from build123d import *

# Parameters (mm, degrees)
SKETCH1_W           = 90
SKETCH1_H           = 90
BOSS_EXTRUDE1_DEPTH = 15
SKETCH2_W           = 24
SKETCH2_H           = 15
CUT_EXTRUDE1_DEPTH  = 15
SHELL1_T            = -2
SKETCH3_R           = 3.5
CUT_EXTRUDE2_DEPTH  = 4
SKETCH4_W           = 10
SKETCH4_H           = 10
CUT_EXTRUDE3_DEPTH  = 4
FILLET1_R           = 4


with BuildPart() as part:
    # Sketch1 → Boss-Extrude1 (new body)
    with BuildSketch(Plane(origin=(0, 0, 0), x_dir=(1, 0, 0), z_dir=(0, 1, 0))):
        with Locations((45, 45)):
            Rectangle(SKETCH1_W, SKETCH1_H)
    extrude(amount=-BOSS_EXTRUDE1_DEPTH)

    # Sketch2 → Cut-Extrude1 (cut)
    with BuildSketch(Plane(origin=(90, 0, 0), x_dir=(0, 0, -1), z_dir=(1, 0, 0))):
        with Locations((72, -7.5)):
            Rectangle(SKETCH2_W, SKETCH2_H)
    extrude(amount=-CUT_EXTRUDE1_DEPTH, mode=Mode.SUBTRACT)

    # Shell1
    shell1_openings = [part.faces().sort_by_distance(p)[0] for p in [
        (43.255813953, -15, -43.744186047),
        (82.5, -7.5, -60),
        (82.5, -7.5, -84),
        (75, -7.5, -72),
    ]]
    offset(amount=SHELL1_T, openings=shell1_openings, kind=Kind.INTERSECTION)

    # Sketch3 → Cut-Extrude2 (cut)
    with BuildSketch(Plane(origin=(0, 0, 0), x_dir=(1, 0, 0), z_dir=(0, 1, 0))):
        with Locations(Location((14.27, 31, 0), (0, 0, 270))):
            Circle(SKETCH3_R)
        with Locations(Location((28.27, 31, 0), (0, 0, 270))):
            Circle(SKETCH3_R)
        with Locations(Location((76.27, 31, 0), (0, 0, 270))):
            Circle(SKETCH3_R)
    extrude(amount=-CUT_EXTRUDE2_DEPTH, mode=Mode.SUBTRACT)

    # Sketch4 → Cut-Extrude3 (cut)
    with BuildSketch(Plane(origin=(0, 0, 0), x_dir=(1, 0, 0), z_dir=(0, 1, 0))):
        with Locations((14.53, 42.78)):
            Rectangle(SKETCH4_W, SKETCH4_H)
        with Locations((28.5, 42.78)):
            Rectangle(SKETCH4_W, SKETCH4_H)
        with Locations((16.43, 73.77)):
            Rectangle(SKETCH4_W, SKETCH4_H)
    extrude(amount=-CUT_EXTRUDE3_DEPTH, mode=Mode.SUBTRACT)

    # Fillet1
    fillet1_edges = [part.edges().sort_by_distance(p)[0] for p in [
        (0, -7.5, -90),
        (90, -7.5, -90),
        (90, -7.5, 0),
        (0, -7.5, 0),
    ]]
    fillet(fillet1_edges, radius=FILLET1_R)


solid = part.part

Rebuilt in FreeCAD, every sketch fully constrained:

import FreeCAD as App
import Part
import Sketcher


def edges_at(feature, points):
    """Names of the edges that pass closest to the given points."""
    edges = feature.Shape.Edges
    near = lambda p: min(range(len(edges)), key=lambda i: edges[i].distToShape(Part.Vertex(*p))[0])
    return sorted({f"Edge{near(p) + 1}" for p in points})


def faces_at(feature, points):
    """Names of the faces that lie closest to the given points."""
    faces = feature.Shape.Faces
    near = lambda p: min(range(len(faces)), key=lambda i: faces[i].distToShape(Part.Vertex(*p))[0])
    return sorted({f"Face{near(p) + 1}" for p in points})

doc = App.newDocument("Part")
params = doc.addObject("Spreadsheet::Sheet", "Params")
for row, (alias, value) in enumerate([
    ("sketch1_width", "90 mm"),
    ("pad1_length", "15 mm"),
    ("sketch2_width", "15 mm"),
    ("sketch2_height", "24 mm"),
    ("pocket1_length", "15 mm"),
    ("thickness_wall", "2 mm"),
    ("sketch3_diameter", "7 mm"),
    ("pocket2_length", "4 mm"),
    ("sketch4_width", "10 mm"),
    ("pocket3_length", "4 mm"),
    ("fillet_radius", "4 mm"),
], start=1):
    params.set(f"A{row}", alias)
    params.set(f"B{row}", "=" + value)
    params.setAlias(f"B{row}", alias)

body = doc.addObject("PartDesign::Body", "Body")

# Sketch on XZ plane
sketch1 = doc.addObject("Sketcher::SketchObject", "Sketch")
body.addObject(sketch1)
sketch1.AttachmentSupport = (doc.XZ_Plane, [""])
sketch1.MapMode = "FlatFace"
sketch1.addGeometry([
    Part.LineSegment(App.Vector(0, -90, 0), App.Vector(0, 0, 0)),
    Part.LineSegment(App.Vector(0, 0, 0), App.Vector(90, 0, 0)),
    Part.LineSegment(App.Vector(90, 0, 0), App.Vector(90, -90, 0)),
    Part.LineSegment(App.Vector(90, -90, 0), App.Vector(0, -90, 0)),
], False)
sketch1.addConstraint([
    Sketcher.Constraint("Coincident", 0, 2, 1, 1),
    Sketcher.Constraint("Coincident", 1, 2, 2, 1),
    Sketcher.Constraint("Coincident", 2, 2, 3, 1),
    Sketcher.Constraint("Coincident", 3, 2, 0, 1),
    Sketcher.Constraint("Vertical", 0),
    Sketcher.Constraint("Horizontal", 1),
    Sketcher.Constraint("Vertical", 2),
    Sketcher.Constraint("Horizontal", 3),
    Sketcher.Constraint("Coincident", 0, 2, -1, 1),
    Sketcher.Constraint("Equal", 3, 0),
    Sketcher.Constraint("DistanceX", 1, 1, 1, 2, 90.0),
])
sketch1.setExpression("Constraints[10]", "Params.sketch1_width")
pad1 = doc.addObject("PartDesign::Pad", "Pad")
body.addObject(pad1)
pad1.Profile = sketch1
pad1.setExpression("Length", "Params.pad1_length")

# Sketch on YZ plane
sketch2 = doc.addObject("Sketcher::SketchObject", "Sketch001")
body.addObject(sketch2)
sketch2.AttachmentSupport = (doc.YZ_Plane, [""])
sketch2.MapMode = "FlatFace"
sketch2.AttachmentOffset = App.Placement(App.Vector(0, 0, 90), App.Rotation())
sketch2.addGeometry([
    Part.LineSegment(App.Vector(0, -60, 0), App.Vector(-15, -60, 0)),
    Part.LineSegment(App.Vector(-15, -60, 0), App.Vector(-15, -84, 0)),
    Part.LineSegment(App.Vector(-15, -84, 0), App.Vector(0, -84, 0)),
    Part.LineSegment(App.Vector(0, -84, 0), App.Vector(0, -60, 0)),
], False)
sketch2.addConstraint([
    Sketcher.Constraint("Coincident", 0, 2, 1, 1),
    Sketcher.Constraint("Coincident", 1, 2, 2, 1),
    Sketcher.Constraint("Coincident", 2, 2, 3, 1),
    Sketcher.Constraint("Coincident", 3, 2, 0, 1),
    Sketcher.Constraint("Horizontal", 0),
    Sketcher.Constraint("Vertical", 1),
    Sketcher.Constraint("Horizontal", 2),
    Sketcher.Constraint("Vertical", 3),
    Sketcher.Constraint("PointOnObject", 2, 2, -2),
    Sketcher.Constraint("DistanceX", 0, 2, 0, 1, 15.0),
    Sketcher.Constraint("DistanceY", 1, 2, 1, 1, 24.0),
    Sketcher.Constraint("DistanceY", 0, 2, -1, 1, 60.0),
])
sketch2.setExpression("Constraints[9]", "Params.sketch2_width")
sketch2.setExpression("Constraints[10]", "Params.sketch2_height")
pocket1 = doc.addObject("PartDesign::Pocket", "Pocket")
body.addObject(pocket1)
pocket1.Profile = sketch2
pocket1.setExpression("Length", "Params.pocket1_length")
doc.recompute()

thickness = doc.addObject("PartDesign::Thickness", "Thickness")
body.addObject(thickness)
thickness.Base = (pocket1, faces_at(pocket1, [
    (45, -15, -45),
    (82.5, -7.5, -60),
    (82.5, -7.5, -84),
    (75, -7.5, -72),
]))
thickness.setExpression("Value", "Params.thickness_wall")
thickness.Reversed = True
thickness.Join = "Intersection"

# Sketch on XZ plane
sketch3 = doc.addObject("Sketcher::SketchObject", "Sketch002")
body.addObject(sketch3)
sketch3.AttachmentSupport = (doc.XZ_Plane, [""])
sketch3.MapMode = "FlatFace"
sketch3.addGeometry([
    Part.Circle(App.Vector(14.27, -31, 0), App.Vector(0, 0, 1), 3.5),
    Part.Circle(App.Vector(28.27, -31, 0), App.Vector(0, 0, 1), 3.5),
    Part.Circle(App.Vector(76.27, -31, 0), App.Vector(0, 0, 1), 3.5),
], False)
sketch3.addConstraint([
    Sketcher.Constraint("Equal", 0, 1),
    Sketcher.Constraint("Equal", 1, 2),
    Sketcher.Constraint("Horizontal", 0, 3, 1, 3),
    Sketcher.Constraint("Horizontal", 1, 3, 2, 3),
    Sketcher.Constraint("Diameter", 0, 7.0),
    Sketcher.Constraint("DistanceY", 0, 3, -1, 1, 31.0),
    Sketcher.Constraint("DistanceX", 0, 3, 1, 3, 14.0),
    Sketcher.Constraint("DistanceX", 1, 3, 2, 3, 48.0),
    Sketcher.Constraint("DistanceX", -1, 1, 0, 3, 14.27),
])
sketch3.setExpression("Constraints[4]", "Params.sketch3_diameter")
pocket2 = doc.addObject("PartDesign::Pocket", "Pocket001")
body.addObject(pocket2)
pocket2.Profile = sketch3
pocket2.setExpression("Length", "Params.pocket2_length")
pocket2.Reversed = True

# Sketch on XZ plane
sketch4 = doc.addObject("Sketcher::SketchObject", "Sketch003")
body.addObject(sketch4)
sketch4.AttachmentSupport = (doc.XZ_Plane, [""])
sketch4.MapMode = "FlatFace"
sketch4.addGeometry([
    Part.LineSegment(App.Vector(9.53, -47.78, 0), App.Vector(9.53, -37.78, 0)),  # 0
    Part.LineSegment(App.Vector(9.53, -37.78, 0), App.Vector(19.53, -37.78, 0)),  # 1
    Part.LineSegment(App.Vector(19.53, -37.78, 0), App.Vector(19.53, -47.78, 0)),  # 2
    Part.LineSegment(App.Vector(19.53, -47.78, 0), App.Vector(9.53, -47.78, 0)),  # 3
    Part.LineSegment(App.Vector(23.5, -47.78, 0), App.Vector(23.5, -37.78, 0)),  # 4
    Part.LineSegment(App.Vector(23.5, -37.78, 0), App.Vector(33.5, -37.78, 0)),  # 5
    Part.LineSegment(App.Vector(33.5, -37.78, 0), App.Vector(33.5, -47.78, 0)),  # 6
    Part.LineSegment(App.Vector(33.5, -47.78, 0), App.Vector(23.5, -47.78, 0)),  # 7
    Part.LineSegment(App.Vector(11.43, -78.77, 0), App.Vector(11.43, -68.77, 0)),  # 8
    Part.LineSegment(App.Vector(11.43, -68.77, 0), App.Vector(21.43, -68.77, 0)),  # 9
    Part.LineSegment(App.Vector(21.43, -68.77, 0), App.Vector(21.43, -78.77, 0)),  # 10
    Part.LineSegment(App.Vector(21.43, -78.77, 0), App.Vector(11.43, -78.77, 0)),  # 11
], False)
sketch4.addConstraint([
    Sketcher.Constraint("Coincident", 0, 2, 1, 1),
    Sketcher.Constraint("Coincident", 1, 2, 2, 1),
    Sketcher.Constraint("Coincident", 2, 2, 3, 1),
    Sketcher.Constraint("Coincident", 3, 2, 0, 1),
    Sketcher.Constraint("Coincident", 4, 2, 5, 1),
    Sketcher.Constraint("Coincident", 5, 2, 6, 1),
    Sketcher.Constraint("Coincident", 6, 2, 7, 1),
    Sketcher.Constraint("Coincident", 7, 2, 4, 1),
    Sketcher.Constraint("Coincident", 8, 2, 9, 1),
    Sketcher.Constraint("Coincident", 9, 2, 10, 1),
    Sketcher.Constraint("Coincident", 10, 2, 11, 1),
    Sketcher.Constraint("Coincident", 11, 2, 8, 1),
    Sketcher.Constraint("Vertical", 0),
    Sketcher.Constraint("Horizontal", 1),
    Sketcher.Constraint("Vertical", 2),
    Sketcher.Constraint("Horizontal", 3),
    Sketcher.Constraint("Vertical", 4),
    Sketcher.Constraint("Horizontal", 5),
    Sketcher.Constraint("Vertical", 6),
    Sketcher.Constraint("Horizontal", 7),
    Sketcher.Constraint("Vertical", 8),
    Sketcher.Constraint("Horizontal", 9),
    Sketcher.Constraint("Vertical", 10),
    Sketcher.Constraint("Horizontal", 11),
    Sketcher.Constraint("Horizontal", 1, 2, 4, 2),
    Sketcher.Constraint("Horizontal", 3, 2, 6, 2),
    Sketcher.Constraint("Equal", 3, 5),
    Sketcher.Constraint("Equal", 7, 9),
    Sketcher.Constraint("Equal", 11, 0),
    Sketcher.Constraint("Equal", 6, 8),
    Sketcher.Constraint("DistanceX", 1, 1, 1, 2, 10.0),
    Sketcher.Constraint("DistanceX", -1, 1, 4, 2, 23.5),
    Sketcher.Constraint("DistanceX", 3, 2, 8, 2, 1.9),
    Sketcher.Constraint("DistanceX", -1, 1, 0, 2, 9.53),
    Sketcher.Constraint("DistanceY", 0, 2, -1, 1, 37.78),
    Sketcher.Constraint("DistanceY", 8, 2, -1, 1, 68.77),
])
sketch4.setExpression("Constraints[30]", "Params.sketch4_width")
pocket3 = doc.addObject("PartDesign::Pocket", "Pocket002")
body.addObject(pocket3)
pocket3.Profile = sketch4
pocket3.setExpression("Length", "Params.pocket3_length")
pocket3.Reversed = True
doc.recompute()

fillet = doc.addObject("PartDesign::Fillet", "Fillet")
body.addObject(fillet)
fillet.Base = (pocket3, edges_at(pocket3, [
    (0, -7.5, -90),
    (90, -7.5, -90),
    (90, -7.5, 0),
    (0, -7.5, 0),
]))
fillet.setExpression("Radius", "Params.fillet_radius")

doc.recompute()
